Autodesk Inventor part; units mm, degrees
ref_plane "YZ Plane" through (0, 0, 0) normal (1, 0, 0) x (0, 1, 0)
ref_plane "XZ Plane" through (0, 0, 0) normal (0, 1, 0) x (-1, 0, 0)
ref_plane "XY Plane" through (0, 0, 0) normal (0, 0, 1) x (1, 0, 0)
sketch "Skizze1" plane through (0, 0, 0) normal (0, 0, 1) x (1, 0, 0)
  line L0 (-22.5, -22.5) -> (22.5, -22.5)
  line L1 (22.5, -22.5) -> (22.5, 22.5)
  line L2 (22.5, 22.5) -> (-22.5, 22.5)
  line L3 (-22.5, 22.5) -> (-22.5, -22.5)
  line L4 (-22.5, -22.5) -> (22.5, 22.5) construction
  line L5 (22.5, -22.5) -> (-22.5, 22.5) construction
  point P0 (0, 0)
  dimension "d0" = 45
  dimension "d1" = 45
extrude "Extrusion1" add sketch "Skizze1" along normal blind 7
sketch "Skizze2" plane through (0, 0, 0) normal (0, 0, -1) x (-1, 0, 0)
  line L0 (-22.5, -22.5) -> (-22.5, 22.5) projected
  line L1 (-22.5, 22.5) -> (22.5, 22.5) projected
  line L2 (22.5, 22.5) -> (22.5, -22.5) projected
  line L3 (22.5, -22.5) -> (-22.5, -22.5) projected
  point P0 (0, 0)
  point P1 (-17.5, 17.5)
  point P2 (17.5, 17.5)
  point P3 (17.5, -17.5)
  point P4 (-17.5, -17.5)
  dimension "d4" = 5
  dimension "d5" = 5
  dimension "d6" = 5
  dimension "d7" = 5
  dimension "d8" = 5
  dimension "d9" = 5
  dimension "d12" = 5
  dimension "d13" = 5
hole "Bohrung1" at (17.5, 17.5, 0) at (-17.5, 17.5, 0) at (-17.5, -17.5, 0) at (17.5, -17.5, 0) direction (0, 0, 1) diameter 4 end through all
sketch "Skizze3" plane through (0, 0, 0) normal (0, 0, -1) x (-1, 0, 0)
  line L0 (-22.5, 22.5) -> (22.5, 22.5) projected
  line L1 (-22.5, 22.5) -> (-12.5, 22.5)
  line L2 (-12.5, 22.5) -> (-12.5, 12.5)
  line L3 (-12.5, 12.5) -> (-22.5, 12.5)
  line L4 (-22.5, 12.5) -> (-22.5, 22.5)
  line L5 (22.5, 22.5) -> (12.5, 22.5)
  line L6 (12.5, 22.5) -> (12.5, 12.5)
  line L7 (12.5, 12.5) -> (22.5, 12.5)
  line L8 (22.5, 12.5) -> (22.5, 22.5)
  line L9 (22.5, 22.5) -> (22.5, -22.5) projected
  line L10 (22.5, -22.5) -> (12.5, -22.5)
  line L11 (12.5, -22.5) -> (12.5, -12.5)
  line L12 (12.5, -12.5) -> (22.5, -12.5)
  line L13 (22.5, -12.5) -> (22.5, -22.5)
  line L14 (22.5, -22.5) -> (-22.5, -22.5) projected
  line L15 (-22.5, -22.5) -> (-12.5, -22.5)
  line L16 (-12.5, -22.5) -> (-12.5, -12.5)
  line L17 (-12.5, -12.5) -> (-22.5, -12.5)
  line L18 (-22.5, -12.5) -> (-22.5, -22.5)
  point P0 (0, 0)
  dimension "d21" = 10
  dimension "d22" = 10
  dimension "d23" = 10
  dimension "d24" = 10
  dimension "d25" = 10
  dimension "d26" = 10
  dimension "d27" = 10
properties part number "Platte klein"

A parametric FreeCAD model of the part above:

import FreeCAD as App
import Part
import Sketcher
from FreeCAD import Vector
Q = App.Units.Quantity


def add_polygon(sketch, points):
    """Adds a closed chain of lines whose ends are joined by coincident constraints."""
    first, n = sketch.GeometryCount, len(points)
    for a, b in zip(points, points[1:] + points[:1]):
        sketch.addGeometry(Part.LineSegment(App.Vector(*a, 0), App.Vector(*b, 0)), False)
    for i in range(n):
        sketch.addConstraint(Sketcher.Constraint("Coincident", first + i, 2, first + (i + 1) % n, 1))

doc = App.newDocument("Part")
body = doc.addObject("PartDesign::Body", "Body")

# Sketch on XY plane
sketch1 = body.newObject("Sketcher::SketchObject", "Sketch")
sketch1.AttachmentSupport = (doc.getObject("XY_Plane"), [""])
sketch1.MapMode = "FlatFace"
add_polygon(sketch1, [(-22, 22), (-22, -22), (22, -22), (22, 22)])  # lines 0-3
sketch1.addConstraint([
    Sketcher.Constraint("Vertical", 0),
    Sketcher.Constraint("Horizontal", 1),
    Sketcher.Constraint("Vertical", 2),
    Sketcher.Constraint("Horizontal", 3),
    Sketcher.Constraint("Symmetric", 0, 2, 2, 2, -1, 1),
    Sketcher.Constraint("Equal", 3, 0),
    Sketcher.Constraint("DistanceX", 1, 1, 1, 2, Q("45 mm")),
])
pad1 = body.newObject("PartDesign::Pad", "Pad")
pad1.Profile = sketch1
pad1.Length = 7

# Sketch on XY plane
sketch2 = body.newObject("Sketcher::SketchObject", "Sketch001")
sketch2.AttachmentSupport = (doc.getObject("XY_Plane"), [""])
sketch2.MapMode = "FlatFace"
sketch2.addGeometry([
    Part.Circle(Vector(17.5, 17.5, 0), Vector(0, 0, 1), 2),
    Part.Circle(Vector(-17.5, 17.5, 0), Vector(0, 0, 1), 2),
    Part.Circle(Vector(-17.5, -17.5, 0), Vector(0, 0, 1), 2),
    Part.Circle(Vector(17.5, -17.5, 0), Vector(0, 0, 1), 2),
], False)
sketch2.addConstraint([
    Sketcher.Constraint("Equal", 0, 1),
    Sketcher.Constraint("Equal", 1, 2),
    Sketcher.Constraint("Equal", 2, 3),
    Sketcher.Constraint("Symmetric", 0, 3, 2, 3, -1, 1),
    Sketcher.Constraint("Symmetric", 1, 3, 3, 3, -1, 1),
    Sketcher.Constraint("Symmetric", 0, 3, 1, 3, -2),
    Sketcher.Constraint("Diameter", 0, Q("4 mm")),
    Sketcher.Constraint("DistanceX", 1, 3, 0, 3, Q("35 mm")),
    Sketcher.Constraint("DistanceY", 2, 3, 1, 3, Q("35 mm")),
])
doc.recompute()
hole = body.newObject("PartDesign::Hole", "Hole")
hole.Profile = sketch2
hole.ThreadType = "None"
hole.Diameter = 4
hole.DepthType = "ThroughAll"
hole.Reversed = True

doc.recompute()
